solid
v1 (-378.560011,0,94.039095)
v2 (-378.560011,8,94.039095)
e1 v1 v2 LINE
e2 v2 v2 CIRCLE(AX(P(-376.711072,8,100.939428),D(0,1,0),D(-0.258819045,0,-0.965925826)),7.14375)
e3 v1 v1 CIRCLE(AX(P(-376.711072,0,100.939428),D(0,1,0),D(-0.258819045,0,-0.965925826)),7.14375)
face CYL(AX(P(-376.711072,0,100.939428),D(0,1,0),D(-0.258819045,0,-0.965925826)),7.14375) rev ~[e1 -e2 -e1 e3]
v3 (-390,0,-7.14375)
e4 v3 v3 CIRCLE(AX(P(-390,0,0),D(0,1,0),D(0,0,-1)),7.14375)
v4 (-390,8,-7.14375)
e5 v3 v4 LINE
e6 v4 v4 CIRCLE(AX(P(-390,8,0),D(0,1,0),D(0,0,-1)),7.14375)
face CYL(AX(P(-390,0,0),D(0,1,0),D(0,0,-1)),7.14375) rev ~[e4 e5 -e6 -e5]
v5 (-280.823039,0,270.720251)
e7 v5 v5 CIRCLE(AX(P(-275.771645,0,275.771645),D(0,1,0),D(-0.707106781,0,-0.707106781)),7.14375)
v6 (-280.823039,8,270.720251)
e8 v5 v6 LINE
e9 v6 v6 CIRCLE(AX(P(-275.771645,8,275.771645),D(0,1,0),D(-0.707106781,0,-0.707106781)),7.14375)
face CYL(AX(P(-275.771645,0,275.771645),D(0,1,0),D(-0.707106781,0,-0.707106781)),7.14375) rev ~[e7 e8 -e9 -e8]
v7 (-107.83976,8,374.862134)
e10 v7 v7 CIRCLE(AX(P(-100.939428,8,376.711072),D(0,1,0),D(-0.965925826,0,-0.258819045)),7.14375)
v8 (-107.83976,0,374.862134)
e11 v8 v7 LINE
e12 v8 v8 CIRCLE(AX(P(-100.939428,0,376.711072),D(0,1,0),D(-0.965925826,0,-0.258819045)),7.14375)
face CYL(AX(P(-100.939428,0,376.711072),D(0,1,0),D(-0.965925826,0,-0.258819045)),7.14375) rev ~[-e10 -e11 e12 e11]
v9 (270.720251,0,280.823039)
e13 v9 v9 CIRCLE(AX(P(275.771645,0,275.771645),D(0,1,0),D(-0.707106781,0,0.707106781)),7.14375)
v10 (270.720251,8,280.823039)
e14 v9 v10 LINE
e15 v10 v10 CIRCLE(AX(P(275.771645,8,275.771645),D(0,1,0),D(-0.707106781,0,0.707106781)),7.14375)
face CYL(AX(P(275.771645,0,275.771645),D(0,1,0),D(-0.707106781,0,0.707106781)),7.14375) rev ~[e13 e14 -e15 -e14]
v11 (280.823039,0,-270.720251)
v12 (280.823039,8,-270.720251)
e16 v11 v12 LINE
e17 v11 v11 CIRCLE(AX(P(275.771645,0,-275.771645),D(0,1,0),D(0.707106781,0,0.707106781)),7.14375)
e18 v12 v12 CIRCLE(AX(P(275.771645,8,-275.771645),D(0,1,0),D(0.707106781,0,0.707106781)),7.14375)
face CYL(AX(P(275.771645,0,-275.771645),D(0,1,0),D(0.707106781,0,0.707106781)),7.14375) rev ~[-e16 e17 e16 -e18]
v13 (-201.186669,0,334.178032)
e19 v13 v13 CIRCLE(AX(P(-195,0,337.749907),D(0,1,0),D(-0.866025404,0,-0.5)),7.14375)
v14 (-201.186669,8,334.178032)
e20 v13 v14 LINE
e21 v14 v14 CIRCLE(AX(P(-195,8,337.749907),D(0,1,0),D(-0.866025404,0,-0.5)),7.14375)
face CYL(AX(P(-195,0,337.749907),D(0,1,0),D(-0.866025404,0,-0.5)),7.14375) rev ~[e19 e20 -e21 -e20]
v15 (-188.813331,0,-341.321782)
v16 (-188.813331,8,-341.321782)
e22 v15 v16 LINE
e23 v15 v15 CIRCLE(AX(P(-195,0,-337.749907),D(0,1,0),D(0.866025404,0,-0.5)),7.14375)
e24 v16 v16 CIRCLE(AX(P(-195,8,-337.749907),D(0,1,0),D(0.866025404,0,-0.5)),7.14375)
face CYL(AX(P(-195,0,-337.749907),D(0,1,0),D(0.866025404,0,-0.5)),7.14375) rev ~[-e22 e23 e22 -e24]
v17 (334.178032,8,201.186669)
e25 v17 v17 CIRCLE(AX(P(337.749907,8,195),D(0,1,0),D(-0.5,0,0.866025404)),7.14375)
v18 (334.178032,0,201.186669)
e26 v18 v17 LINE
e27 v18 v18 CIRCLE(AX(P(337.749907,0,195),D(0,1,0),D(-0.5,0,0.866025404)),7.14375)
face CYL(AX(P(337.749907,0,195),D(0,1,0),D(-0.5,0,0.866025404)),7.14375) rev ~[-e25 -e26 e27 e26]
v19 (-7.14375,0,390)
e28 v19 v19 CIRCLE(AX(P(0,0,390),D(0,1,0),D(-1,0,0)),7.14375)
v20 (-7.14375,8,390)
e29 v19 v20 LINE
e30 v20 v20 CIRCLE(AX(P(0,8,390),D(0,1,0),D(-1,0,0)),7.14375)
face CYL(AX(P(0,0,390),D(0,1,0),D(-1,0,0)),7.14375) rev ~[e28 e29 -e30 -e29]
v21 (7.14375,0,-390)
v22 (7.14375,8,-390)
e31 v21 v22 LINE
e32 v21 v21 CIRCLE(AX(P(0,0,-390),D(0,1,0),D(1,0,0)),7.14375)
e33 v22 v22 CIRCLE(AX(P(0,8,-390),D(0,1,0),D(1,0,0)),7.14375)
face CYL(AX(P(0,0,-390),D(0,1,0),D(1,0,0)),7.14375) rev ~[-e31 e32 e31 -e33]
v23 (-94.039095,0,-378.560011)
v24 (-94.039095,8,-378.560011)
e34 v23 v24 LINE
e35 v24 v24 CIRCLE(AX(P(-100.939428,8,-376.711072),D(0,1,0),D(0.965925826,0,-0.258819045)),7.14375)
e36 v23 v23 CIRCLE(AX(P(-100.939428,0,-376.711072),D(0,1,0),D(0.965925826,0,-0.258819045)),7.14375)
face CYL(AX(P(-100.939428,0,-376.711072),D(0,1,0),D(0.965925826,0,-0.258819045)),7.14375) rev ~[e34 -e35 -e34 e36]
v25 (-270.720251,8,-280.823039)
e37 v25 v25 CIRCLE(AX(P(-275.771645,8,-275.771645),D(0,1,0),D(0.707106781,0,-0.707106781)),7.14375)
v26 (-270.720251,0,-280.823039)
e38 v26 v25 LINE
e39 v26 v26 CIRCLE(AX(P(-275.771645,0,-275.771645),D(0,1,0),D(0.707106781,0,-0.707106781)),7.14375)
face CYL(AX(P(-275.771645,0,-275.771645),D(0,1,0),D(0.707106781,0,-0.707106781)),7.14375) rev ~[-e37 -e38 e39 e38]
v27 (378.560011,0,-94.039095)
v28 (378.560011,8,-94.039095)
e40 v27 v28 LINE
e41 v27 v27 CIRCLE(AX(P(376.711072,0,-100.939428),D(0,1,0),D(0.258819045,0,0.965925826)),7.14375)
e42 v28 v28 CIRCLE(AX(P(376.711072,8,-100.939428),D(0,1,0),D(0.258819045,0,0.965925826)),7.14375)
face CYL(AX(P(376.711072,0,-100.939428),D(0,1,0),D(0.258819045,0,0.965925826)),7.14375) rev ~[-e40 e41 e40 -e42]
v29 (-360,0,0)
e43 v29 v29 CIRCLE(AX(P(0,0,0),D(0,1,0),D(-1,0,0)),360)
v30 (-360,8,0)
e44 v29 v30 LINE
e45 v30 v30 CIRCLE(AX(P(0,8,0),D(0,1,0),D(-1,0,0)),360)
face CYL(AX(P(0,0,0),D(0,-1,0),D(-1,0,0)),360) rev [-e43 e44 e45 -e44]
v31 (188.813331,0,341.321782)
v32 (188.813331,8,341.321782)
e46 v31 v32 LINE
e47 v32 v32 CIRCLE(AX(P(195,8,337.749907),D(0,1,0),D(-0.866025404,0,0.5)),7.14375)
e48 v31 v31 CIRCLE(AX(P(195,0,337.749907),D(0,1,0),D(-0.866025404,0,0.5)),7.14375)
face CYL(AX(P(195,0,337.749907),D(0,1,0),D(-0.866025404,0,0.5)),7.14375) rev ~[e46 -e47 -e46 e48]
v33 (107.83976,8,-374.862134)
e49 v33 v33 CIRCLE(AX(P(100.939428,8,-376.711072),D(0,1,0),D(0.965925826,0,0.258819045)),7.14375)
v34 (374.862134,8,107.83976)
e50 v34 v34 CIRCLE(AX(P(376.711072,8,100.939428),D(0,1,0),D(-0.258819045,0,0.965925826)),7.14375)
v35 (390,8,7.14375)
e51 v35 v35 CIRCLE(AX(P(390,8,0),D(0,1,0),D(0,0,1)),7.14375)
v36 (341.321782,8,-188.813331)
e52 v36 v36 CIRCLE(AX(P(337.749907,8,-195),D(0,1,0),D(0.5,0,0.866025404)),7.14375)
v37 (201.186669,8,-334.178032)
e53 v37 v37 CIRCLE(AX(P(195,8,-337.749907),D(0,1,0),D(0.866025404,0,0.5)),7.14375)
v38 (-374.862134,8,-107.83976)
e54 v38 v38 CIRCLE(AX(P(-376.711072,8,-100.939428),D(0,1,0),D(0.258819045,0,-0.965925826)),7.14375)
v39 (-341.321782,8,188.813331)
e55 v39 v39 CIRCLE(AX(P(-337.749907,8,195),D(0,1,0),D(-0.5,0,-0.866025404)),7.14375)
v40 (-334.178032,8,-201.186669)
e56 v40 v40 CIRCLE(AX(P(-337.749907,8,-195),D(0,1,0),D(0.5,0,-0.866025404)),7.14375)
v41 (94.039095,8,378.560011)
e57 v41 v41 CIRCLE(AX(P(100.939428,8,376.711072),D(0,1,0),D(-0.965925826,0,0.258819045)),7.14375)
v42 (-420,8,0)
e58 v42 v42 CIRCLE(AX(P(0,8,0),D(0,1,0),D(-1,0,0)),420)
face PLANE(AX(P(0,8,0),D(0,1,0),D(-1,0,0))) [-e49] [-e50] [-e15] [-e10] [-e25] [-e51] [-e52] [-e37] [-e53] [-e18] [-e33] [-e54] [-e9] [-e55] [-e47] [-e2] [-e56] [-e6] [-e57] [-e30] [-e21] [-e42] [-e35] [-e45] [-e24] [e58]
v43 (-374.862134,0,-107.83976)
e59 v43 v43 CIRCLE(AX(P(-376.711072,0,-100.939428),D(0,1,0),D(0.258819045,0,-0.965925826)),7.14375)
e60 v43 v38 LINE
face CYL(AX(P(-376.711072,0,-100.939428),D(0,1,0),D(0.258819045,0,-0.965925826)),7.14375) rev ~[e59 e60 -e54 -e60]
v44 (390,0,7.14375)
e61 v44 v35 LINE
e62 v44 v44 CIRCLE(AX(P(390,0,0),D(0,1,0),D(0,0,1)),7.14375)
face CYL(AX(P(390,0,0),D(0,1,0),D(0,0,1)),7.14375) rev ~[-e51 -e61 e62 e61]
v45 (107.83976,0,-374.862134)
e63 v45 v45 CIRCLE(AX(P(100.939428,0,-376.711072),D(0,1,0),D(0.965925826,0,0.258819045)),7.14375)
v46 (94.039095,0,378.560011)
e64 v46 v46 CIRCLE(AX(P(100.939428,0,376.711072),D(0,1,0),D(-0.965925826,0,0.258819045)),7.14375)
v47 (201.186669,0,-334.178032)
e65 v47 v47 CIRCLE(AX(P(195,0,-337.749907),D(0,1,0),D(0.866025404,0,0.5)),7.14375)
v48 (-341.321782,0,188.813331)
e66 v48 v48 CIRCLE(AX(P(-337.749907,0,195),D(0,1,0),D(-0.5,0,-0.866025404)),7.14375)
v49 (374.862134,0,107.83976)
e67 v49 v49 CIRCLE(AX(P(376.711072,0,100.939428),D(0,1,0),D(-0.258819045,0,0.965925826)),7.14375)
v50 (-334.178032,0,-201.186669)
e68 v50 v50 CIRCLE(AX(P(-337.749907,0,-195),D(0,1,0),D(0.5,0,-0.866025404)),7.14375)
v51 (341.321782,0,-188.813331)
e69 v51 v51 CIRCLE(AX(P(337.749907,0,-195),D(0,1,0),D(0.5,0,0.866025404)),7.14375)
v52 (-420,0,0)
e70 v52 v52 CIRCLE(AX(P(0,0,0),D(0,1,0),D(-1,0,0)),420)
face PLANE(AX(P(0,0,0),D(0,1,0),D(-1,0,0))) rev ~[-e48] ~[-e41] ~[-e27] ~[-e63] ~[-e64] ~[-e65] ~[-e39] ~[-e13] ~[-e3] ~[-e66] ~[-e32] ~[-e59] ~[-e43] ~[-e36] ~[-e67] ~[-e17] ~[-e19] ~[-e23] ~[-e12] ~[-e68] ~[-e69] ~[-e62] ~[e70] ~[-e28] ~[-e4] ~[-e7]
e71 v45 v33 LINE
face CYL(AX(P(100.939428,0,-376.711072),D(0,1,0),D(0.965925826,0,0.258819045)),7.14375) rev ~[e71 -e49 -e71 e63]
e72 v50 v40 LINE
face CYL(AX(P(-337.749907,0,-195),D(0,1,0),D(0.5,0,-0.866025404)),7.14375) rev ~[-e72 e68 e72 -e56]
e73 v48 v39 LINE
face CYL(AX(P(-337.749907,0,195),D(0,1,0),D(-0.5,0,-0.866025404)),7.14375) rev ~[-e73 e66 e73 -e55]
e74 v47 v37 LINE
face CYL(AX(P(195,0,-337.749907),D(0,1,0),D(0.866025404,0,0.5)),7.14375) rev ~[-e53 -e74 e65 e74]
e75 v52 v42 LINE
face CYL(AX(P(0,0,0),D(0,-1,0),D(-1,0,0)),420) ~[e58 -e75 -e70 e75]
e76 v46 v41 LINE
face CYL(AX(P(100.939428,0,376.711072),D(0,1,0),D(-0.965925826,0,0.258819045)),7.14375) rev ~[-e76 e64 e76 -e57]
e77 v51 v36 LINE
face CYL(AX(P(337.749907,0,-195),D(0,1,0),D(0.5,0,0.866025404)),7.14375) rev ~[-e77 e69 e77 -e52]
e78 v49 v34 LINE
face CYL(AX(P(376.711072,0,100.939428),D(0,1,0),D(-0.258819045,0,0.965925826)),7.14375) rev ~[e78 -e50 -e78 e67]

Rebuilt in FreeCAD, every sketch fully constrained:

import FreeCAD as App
import Part
import Sketcher
from FreeCAD import Vector

doc = App.newDocument("Part")
params = doc.addObject("Spreadsheet::Sheet", "Params")
for row, (alias, value) in enumerate([
    ("sketch1_diameter", "840 mm"),
    ("sketch1_diameter2", "720 mm"),
    ("pad1_length", "8 mm"),
    ("hole_diameter", "14.2875 mm"),
], start=1):
    params.set(f"A{row}", alias)
    params.set(f"B{row}", "=" + value)
    params.setAlias(f"B{row}", alias)

body = doc.addObject("PartDesign::Body", "Body")

# Sketch on XZ plane
sketch1 = body.newObject("Sketcher::SketchObject", "Sketch")
sketch1.AttachmentSupport = (doc.getObject("XZ_Plane"), [""])
sketch1.MapMode = "FlatFace"
sketch1.addGeometry([
    Part.Circle(Vector(0, 0, 0), Vector(0, 0, 1), 420),
    Part.Circle(Vector(0, 0, 0), Vector(0, 0, 1), 360),
], False)
sketch1.addConstraint([
    Sketcher.Constraint("Coincident", 0, 3, -1, 1),
    Sketcher.Constraint("Coincident", 1, 3, -1, 1),
    Sketcher.Constraint("Diameter", 0, 840.0),
    Sketcher.Constraint("Diameter", 1, 720.0),
])
sketch1.setExpression("Constraints[2]", "Params.sketch1_diameter")
sketch1.setExpression("Constraints[3]", "Params.sketch1_diameter2")
pad1 = body.newObject("PartDesign::Pad", "Pad")
pad1.Profile = sketch1
pad1.setExpression("Length", "Params.pad1_length")
pad1.Reversed = True

# Sketch on XZ plane
sketch2 = body.newObject("Sketcher::SketchObject", "Sketch001")
sketch2.AttachmentSupport = (doc.getObject("XZ_Plane"), [""])
sketch2.MapMode = "FlatFace"
sketch2.addGeometry(Part.Circle(Vector(-390, 0, 0), Vector(0, 0, 1), 7), False)
sketch2.addConstraint([
    Sketcher.Constraint("PointOnObject", 0, 3, -1),
    Sketcher.Constraint("DistanceX", 0, 3, -1, 1, 390.0),
    Sketcher.Constraint("Diameter", 0, 14.2875),
])
doc.recompute()
hole = body.newObject("PartDesign::Hole", "Hole")
hole.Profile = sketch2
hole.ThreadType = "None"
hole.setExpression("Diameter", "Params.hole_diameter")
hole.DepthType = "ThroughAll"
doc.recompute()

polarpattern = body.newObject("PartDesign::PolarPattern", "PolarPattern")
polarpattern.Originals = [hole]
polarpattern.Axis = (doc.getObject("Y_Axis"), [""])
polarpattern.Angle = 360
polarpattern.Occurrences = 24
body.Tip = polarpattern

doc.recompute()
